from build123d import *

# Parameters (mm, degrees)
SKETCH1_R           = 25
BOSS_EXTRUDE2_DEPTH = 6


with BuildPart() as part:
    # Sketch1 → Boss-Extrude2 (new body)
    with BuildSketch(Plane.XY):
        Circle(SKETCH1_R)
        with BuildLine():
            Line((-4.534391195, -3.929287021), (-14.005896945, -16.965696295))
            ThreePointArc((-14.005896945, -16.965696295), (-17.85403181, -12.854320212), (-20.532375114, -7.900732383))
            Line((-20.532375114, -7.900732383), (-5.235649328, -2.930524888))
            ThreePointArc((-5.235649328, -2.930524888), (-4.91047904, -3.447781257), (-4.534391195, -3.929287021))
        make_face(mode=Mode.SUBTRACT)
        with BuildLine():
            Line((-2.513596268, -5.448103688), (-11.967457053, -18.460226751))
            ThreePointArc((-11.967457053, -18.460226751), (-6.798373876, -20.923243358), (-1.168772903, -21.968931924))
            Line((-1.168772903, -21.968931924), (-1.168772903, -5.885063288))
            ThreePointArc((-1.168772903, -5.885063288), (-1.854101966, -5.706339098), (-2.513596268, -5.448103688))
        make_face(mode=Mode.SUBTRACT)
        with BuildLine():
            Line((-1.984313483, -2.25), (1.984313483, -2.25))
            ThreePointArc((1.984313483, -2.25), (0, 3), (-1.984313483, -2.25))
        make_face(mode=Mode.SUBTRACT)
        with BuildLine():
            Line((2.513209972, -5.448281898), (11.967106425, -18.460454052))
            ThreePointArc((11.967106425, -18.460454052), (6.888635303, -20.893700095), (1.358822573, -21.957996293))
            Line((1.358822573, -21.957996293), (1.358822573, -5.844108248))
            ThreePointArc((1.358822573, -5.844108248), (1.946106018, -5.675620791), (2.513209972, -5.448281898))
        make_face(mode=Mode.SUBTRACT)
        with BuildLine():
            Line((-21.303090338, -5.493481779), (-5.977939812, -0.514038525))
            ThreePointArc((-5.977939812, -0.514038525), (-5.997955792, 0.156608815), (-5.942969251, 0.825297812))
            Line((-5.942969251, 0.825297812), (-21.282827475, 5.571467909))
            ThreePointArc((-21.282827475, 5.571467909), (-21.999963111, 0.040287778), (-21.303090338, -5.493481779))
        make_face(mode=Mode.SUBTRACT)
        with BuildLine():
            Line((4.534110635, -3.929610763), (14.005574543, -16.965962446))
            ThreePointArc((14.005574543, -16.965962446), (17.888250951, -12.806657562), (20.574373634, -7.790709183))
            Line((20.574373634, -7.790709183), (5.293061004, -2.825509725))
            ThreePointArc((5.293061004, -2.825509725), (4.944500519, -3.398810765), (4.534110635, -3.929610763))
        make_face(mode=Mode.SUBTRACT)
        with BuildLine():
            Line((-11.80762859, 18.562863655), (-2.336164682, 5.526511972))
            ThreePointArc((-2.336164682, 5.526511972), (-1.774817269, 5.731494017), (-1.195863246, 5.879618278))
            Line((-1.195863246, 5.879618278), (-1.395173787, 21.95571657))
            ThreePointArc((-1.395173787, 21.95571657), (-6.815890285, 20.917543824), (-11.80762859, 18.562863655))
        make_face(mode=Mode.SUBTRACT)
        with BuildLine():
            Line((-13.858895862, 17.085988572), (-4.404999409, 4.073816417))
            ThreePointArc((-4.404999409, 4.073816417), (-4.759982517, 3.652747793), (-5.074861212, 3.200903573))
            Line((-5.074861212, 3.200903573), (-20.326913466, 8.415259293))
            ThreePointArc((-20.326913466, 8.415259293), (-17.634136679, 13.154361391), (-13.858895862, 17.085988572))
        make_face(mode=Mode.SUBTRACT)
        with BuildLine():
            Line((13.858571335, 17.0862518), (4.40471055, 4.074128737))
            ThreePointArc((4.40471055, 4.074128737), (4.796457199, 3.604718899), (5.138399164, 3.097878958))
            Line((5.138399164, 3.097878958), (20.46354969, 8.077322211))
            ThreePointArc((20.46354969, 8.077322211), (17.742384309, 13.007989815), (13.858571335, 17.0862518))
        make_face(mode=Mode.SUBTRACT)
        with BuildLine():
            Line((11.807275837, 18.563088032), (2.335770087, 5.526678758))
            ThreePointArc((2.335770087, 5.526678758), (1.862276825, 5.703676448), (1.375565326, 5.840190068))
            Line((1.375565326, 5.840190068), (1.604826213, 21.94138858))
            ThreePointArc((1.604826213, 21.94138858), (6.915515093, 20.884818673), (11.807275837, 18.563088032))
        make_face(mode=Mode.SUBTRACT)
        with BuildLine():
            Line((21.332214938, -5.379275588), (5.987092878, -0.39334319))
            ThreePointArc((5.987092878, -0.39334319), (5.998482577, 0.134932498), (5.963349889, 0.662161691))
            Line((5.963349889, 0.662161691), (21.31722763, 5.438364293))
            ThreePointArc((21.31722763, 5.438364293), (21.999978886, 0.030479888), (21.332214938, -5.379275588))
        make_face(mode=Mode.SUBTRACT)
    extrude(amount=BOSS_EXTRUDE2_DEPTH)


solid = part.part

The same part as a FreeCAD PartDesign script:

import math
import FreeCAD as App
import Part
import Sketcher
Q = App.Units.Quantity

doc = App.newDocument("Part")
body = doc.addObject("PartDesign::Body", "Body")

# Sketch on XY plane
sketch1 = body.newObject("Sketcher::SketchObject", "Sketch")
sketch1.AttachmentSupport = (doc.getObject("XY_Plane"), [""])
sketch1.MapMode = "FlatFace"
sketch1.addGeometry([
    Part.Circle(App.Vector(0, 0, 0), App.Vector(0, 0, 1), 25),  # 0
    Part.LineSegment(App.Vector(-11.967457, -18.460227, 0), App.Vector(-2.513596, -5.448104, 0)),  # 1
    Part.ArcOfCircle(Part.Circle(App.Vector(0, 0, 0), App.Vector(0, 0, 1), 6), math.radians(-114.767223), math.radians(-101.232777)),  # 2
    Part.LineSegment(App.Vector(-1.168773, -5.885063, 0), App.Vector(-1.168773, -21.968932, 0)),  # 3
    Part.ArcOfCircle(Part.Circle(App.Vector(0, 0, 0), App.Vector(0, 0, 1), 22), math.radians(-122.954668), math.radians(-93.045332)),  # 4
    Part.ArcOfCircle(Part.Circle(App.Vector(0, 0, 0), App.Vector(0, 0, 1), 6), math.radians(-150.763161), math.radians(-139.08936)),  # 5
    Part.LineSegment(App.Vector(-4.534391, -3.929287, 0), App.Vector(-14.005897, -16.965696, 0)),  # 6
    Part.ArcOfCircle(Part.Circle(App.Vector(0, 0, 0), App.Vector(0, 0, 1), 22), math.radians(-158.95358), math.radians(-129.541108)),  # 7
    Part.LineSegment(App.Vector(-20.532375, -7.900732, 0), App.Vector(-5.235649, -2.930525, 0)),  # 8
    Part.ArcOfCircle(Part.Circle(App.Vector(0, 0, 0), App.Vector(0, 0, 1), 6), math.radians(-76.91064), math.radians(-65.236839)),  # 9
    Part.LineSegment(App.Vector(2.51321, -5.448282, 0), App.Vector(11.967106, -18.460454, 0)),  # 10
    Part.ArcOfCircle(Part.Circle(App.Vector(0, 0, 0), App.Vector(0, 0, 1), 22), math.radians(-86.458892), math.radians(-57.04642)),  # 11
    Part.LineSegment(App.Vector(1.358823, -21.957996, 0), App.Vector(1.358823, -5.844108, 0)),  # 12
    Part.LineSegment(App.Vector(14.005575, -16.965962, 0), App.Vector(4.534111, -3.929611, 0)),  # 13
    Part.ArcOfCircle(Part.Circle(App.Vector(0, 0, 0), App.Vector(0, 0, 1), 6), math.radians(-40.914731), math.radians(-28.093921)),  # 14
    Part.LineSegment(App.Vector(5.293061, -2.82551, 0), App.Vector(20.574374, -7.790709, 0)),  # 15
    Part.ArcOfCircle(Part.Circle(App.Vector(0, 0, 0), App.Vector(0, 0, 1), 22), math.radians(-50.45998), math.radians(-20.739714)),  # 16
    Part.LineSegment(App.Vector(-5.97794, -0.514039, 0), App.Vector(-21.30309, -5.493482, 0)),  # 17
    Part.ArcOfCircle(Part.Circle(App.Vector(0, 0, 0), App.Vector(0, 0, 1), 22), math.radians(165.330172), math.radians(194.45998)),  # 18
    Part.LineSegment(App.Vector(-21.282827, 5.571468, 0), App.Vector(-5.942969, 0.825298, 0)),  # 19
    Part.ArcOfCircle(Part.Circle(App.Vector(0, 0, 0), App.Vector(0, 0, 1), 6), math.radians(172.093921), math.radians(184.914731)),  # 20
    Part.ArcOfCircle(Part.Circle(App.Vector(0, 0, 0), App.Vector(0, 0, 1), 22), math.radians(129.04642), math.radians(157.510644)),  # 21
    Part.LineSegment(App.Vector(-13.858896, 17.085989, 0), App.Vector(-4.404999, 4.073816, 0)),  # 22
    Part.ArcOfCircle(Part.Circle(App.Vector(0, 0, 0), App.Vector(0, 0, 1), 6), math.radians(137.236839), math.radians(147.758846)),  # 23
    Part.LineSegment(App.Vector(-5.074861, 3.200904, 0), App.Vector(-20.326913, 8.415259, 0)),  # 24
    Part.LineSegment(App.Vector(1.984313, -2.25, 0), App.Vector(-1.984313, -2.25, 0)),  # 25
    Part.ArcOfCircle(Part.Circle(App.Vector(0, 0, 0), App.Vector(0, 0, 1), 3), math.radians(-48.590378), math.radians(228.590378)),  # 26
    Part.LineSegment(App.Vector(-2.336165, 5.526512, 0), App.Vector(-11.807629, 18.562864, 0)),  # 27
    Part.ArcOfCircle(Part.Circle(App.Vector(0, 0, 0), App.Vector(0, 0, 1), 22), math.radians(93.635966), math.radians(122.45998)),  # 28
    Part.LineSegment(App.Vector(-1.395174, 21.955717, 0), App.Vector(-1.195863, 5.879618, 0)),  # 29
    Part.ArcOfCircle(Part.Circle(App.Vector(0, 0, 0), App.Vector(0, 0, 1), 6), math.radians(101.496644), math.radians(112.914731)),  # 30
    Part.ArcOfCircle(Part.Circle(App.Vector(0, 0, 0), App.Vector(0, 0, 1), 22), math.radians(-14.153027), math.radians(14.311788)),  # 31
    Part.LineSegment(App.Vector(21.332215, -5.379276, 0), App.Vector(5.987093, -0.393343, 0)),  # 32
    Part.ArcOfCircle(Part.Circle(App.Vector(0, 0, 0), App.Vector(0, 0, 1), 6), math.radians(-3.758847), math.radians(6.336085)),  # 33
    Part.LineSegment(App.Vector(5.96335, 0.662162, 0), App.Vector(21.317228, 5.438364, 0)),  # 34
    Part.LineSegment(App.Vector(4.404711, 4.074129, 0), App.Vector(13.858571, 17.086252, 0)),  # 35
    Part.ArcOfCircle(Part.Circle(App.Vector(0, 0, 0), App.Vector(0, 0, 1), 22), math.radians(21.54002), math.radians(50.954668)),  # 36
    Part.LineSegment(App.Vector(20.46355, 8.077322, 0), App.Vector(5.138399, 3.097879, 0)),  # 37
    Part.ArcOfCircle(Part.Circle(App.Vector(0, 0, 0), App.Vector(0, 0, 1), 6), math.radians(31.085269), math.radians(42.767223)),  # 38
    Part.ArcOfCircle(Part.Circle(App.Vector(0, 0, 0), App.Vector(0, 0, 1), 22), math.radians(57.541108), math.radians(85.816749)),  # 39
    Part.LineSegment(App.Vector(11.807276, 18.563088, 0), App.Vector(2.33577, 5.526679, 0)),  # 40
    Part.ArcOfCircle(Part.Circle(App.Vector(0, 0, 0), App.Vector(0, 0, 1), 6), math.radians(67.08936), math.radians(76.746439)),  # 41
    Part.LineSegment(App.Vector(1.375565, 5.84019, 0), App.Vector(1.604826, 21.941389, 0)),  # 42
], False)
sketch1.addConstraint([
    Sketcher.Constraint("Coincident", 1, 2, 2, 1),
    Sketcher.Constraint("Coincident", 2, 2, 3, 1),
    Sketcher.Constraint("Coincident", 3, 2, 4, 2),
    Sketcher.Constraint("Coincident", 4, 1, 1, 1),
    Sketcher.Constraint("Coincident", 5, 2, 6, 1),
    Sketcher.Constraint("Coincident", 6, 2, 7, 2),
    Sketcher.Constraint("Coincident", 7, 1, 8, 1),
    Sketcher.Constraint("Coincident", 8, 2, 5, 1),
    Sketcher.Constraint("Coincident", 9, 2, 10, 1),
    Sketcher.Constraint("Coincident", 10, 2, 11, 2),
    Sketcher.Constraint("Coincident", 11, 1, 12, 1),
    Sketcher.Constraint("Coincident", 12, 2, 9, 1),
    Sketcher.Constraint("Coincident", 13, 2, 14, 1),
    Sketcher.Constraint("Coincident", 14, 2, 15, 1),
    Sketcher.Constraint("Coincident", 15, 2, 16, 2),
    Sketcher.Constraint("Coincident", 16, 1, 13, 1),
    Sketcher.Constraint("Coincident", 17, 2, 18, 2),
    Sketcher.Constraint("Coincident", 18, 1, 19, 1),
    Sketcher.Constraint("Coincident", 19, 2, 20, 1),
    Sketcher.Constraint("Coincident", 20, 2, 17, 1),
    Sketcher.Constraint("Coincident", 21, 1, 22, 1),
    Sketcher.Constraint("Coincident", 22, 2, 23, 1),
    Sketcher.Constraint("Coincident", 23, 2, 24, 1),
    Sketcher.Constraint("Coincident", 24, 2, 21, 2),
    Sketcher.Constraint("Coincident", 25, 1, 26, 1),
    Sketcher.Constraint("Coincident", 26, 2, 25, 2),
    Sketcher.Constraint("Coincident", 27, 2, 28, 2),
    Sketcher.Constraint("Coincident", 28, 1, 29, 1),
    Sketcher.Constraint("Coincident", 29, 2, 30, 1),
    Sketcher.Constraint("Coincident", 30, 2, 27, 1),
    Sketcher.Constraint("Coincident", 31, 1, 32, 1),
    Sketcher.Constraint("Coincident", 32, 2, 33, 1),
    Sketcher.Constraint("Coincident", 33, 2, 34, 1),
    Sketcher.Constraint("Coincident", 34, 2, 31, 2),
    Sketcher.Constraint("Coincident", 35, 2, 36, 2),
    Sketcher.Constraint("Coincident", 36, 1, 37, 1),
    Sketcher.Constraint("Coincident", 37, 2, 38, 1),
    Sketcher.Constraint("Coincident", 38, 2, 35, 1),
    Sketcher.Constraint("Coincident", 39, 1, 40, 1),
    Sketcher.Constraint("Coincident", 40, 2, 41, 1),
    Sketcher.Constraint("Coincident", 41, 2, 42, 1),
    Sketcher.Constraint("Coincident", 42, 2, 39, 2),
    Sketcher.Constraint("Vertical", 3),
    Sketcher.Constraint("Vertical", 12),
    Sketcher.Constraint("Horizontal", 25),
    Sketcher.Constraint("Coincident", 0, 3, -1, 1),
    Sketcher.Constraint("Coincident", 2, 3, -1, 1),
    Sketcher.Constraint("Coincident", 4, 3, -1, 1),
    Sketcher.Constraint("Coincident", 5, 3, -1, 1),
    Sketcher.Constraint("Coincident", 7, 3, -1, 1),
    Sketcher.Constraint("Coincident", 9, 3, -1, 1),
    Sketcher.Constraint("Coincident", 11, 3, -1, 1),
    Sketcher.Constraint("Coincident", 14, 3, -1, 1),
    Sketcher.Constraint("Coincident", 16, 3, -1, 1),
    Sketcher.Constraint("Coincident", 18, 3, -1, 1),
    Sketcher.Constraint("Coincident", 20, 3, -1, 1),
    Sketcher.Constraint("Coincident", 21, 3, -1, 1),
    Sketcher.Constraint("Coincident", 23, 3, -1, 1),
    Sketcher.Constraint("Coincident", 26, 3, -1, 1),
    Sketcher.Constraint("Coincident", 28, 3, -1, 1),
    Sketcher.Constraint("Coincident", 30, 3, -1, 1),
    Sketcher.Constraint("Coincident", 31, 3, -1, 1),
    Sketcher.Constraint("Coincident", 33, 3, -1, 1),
    Sketcher.Constraint("Coincident", 36, 3, -1, 1),
    Sketcher.Constraint("Coincident", 38, 3, -1, 1),
    Sketcher.Constraint("Coincident", 39, 3, -1, 1),
    Sketcher.Constraint("Coincident", 41, 3, -1, 1),
    Sketcher.Constraint("Equal", 2, 5),
    Sketcher.Constraint("Equal", 4, 7),
    Sketcher.Constraint("Equal", 5, 9),
    Sketcher.Constraint("Equal", 7, 11),
    Sketcher.Constraint("Equal", 9, 14),
    Sketcher.Constraint("Equal", 11, 16),
    Sketcher.Constraint("Equal", 16, 18),
    Sketcher.Constraint("Equal", 14, 20),
    Sketcher.Constraint("Equal", 18, 21),
    Sketcher.Constraint("Equal", 20, 23),
    Sketcher.Constraint("Equal", 21, 28),
    Sketcher.Constraint("Equal", 23, 30),
    Sketcher.Constraint("Equal", 28, 31),
    Sketcher.Constraint("Equal", 30, 33),
    Sketcher.Constraint("Equal", 31, 36),
    Sketcher.Constraint("Equal", 33, 38),
    Sketcher.Constraint("Equal", 36, 39),
    Sketcher.Constraint("Equal", 38, 41),
    Sketcher.Constraint("Parallel", 1, 6),
    Sketcher.Constraint("Parallel", 10, 13),
    Sketcher.Constraint("Parallel", 8, 17),
    Sketcher.Constraint("Parallel", 13, 22),
    Sketcher.Constraint("Parallel", 22, 27),
    Sketcher.Constraint("Parallel", 15, 32),
    Sketcher.Constraint("Parallel", 6, 35),
    Sketcher.Constraint("Parallel", 17, 37),
    Sketcher.Constraint("Parallel", 35, 40),
    Sketcher.Constraint("Equal", 8, 10),
    Sketcher.Constraint("Equal", 13, 17),
    Sketcher.Constraint("Equal", 10, 22),
    Sketcher.Constraint("Equal", 17, 27),
    Sketcher.Constraint("Equal", 1, 35),
    Sketcher.Constraint("Equal", 27, 37),
    Sketcher.Constraint("Equal", 6, 40),
    Sketcher.Constraint("Diameter", 0, Q("50 mm")),
    Sketcher.Constraint("Radius", 2, Q("6 mm")),
    Sketcher.Constraint("Radius", 4, Q("22 mm")),
    Sketcher.Constraint("Radius", 26, Q("3 mm")),
    Sketcher.Constraint("Angle", 1, Q("54 deg")),
    Sketcher.Constraint("Angle", 8, Q("18 deg")),
    Sketcher.Constraint("Angle", 10, Q("-54 deg")),
    Sketcher.Constraint("Angle", 15, Q("-18 deg")),
    Sketcher.Constraint("DistanceY", 25, 1, -1, 1, Q("2.25 mm")),
    Sketcher.Constraint("DistanceX", 22, 2, -1, 1, Q("4.404999 mm")),
    Sketcher.Constraint("DistanceY", 3, 2, 3, 1, Q("16.083869 mm")),
    Sketcher.Constraint("DistanceY", 12, 1, 12, 2, Q("16.113888 mm")),
    Sketcher.Constraint("DistanceX", -1, 1, 37, 2, Q("5.138399 mm")),
    Sketcher.Constraint("Distance", 1, Q("16.083869 mm")),
    Sketcher.Constraint("Distance", 6, Q("16.113888 mm")),
    Sketcher.Constraint("Distance", 42, Q("16.102831 mm")),
    Sketcher.Constraint("DistanceX", -1, 1, 14, 2, Q("5.293061 mm")),
    Sketcher.Constraint("DistanceX", 19, 2, -1, 1, Q("5.942969 mm")),
    Sketcher.Constraint("DistanceX", 23, 2, -1, 1, Q("5.074861 mm")),
    Sketcher.Constraint("DistanceY", -1, 1, 24, 2, Q("8.415259 mm")),
    Sketcher.Constraint("DistanceY", -1, 1, 29, 2, Q("5.879618 mm")),
    Sketcher.Constraint("DistanceX", -1, 1, 33, 2, Q("5.96335 mm")),
    Sketcher.Constraint("DistanceY", -1, 1, 41, 2, Q("5.84019 mm")),
    Sketcher.Constraint("Distance", 19, Q("16.057315 mm")),
    Sketcher.Constraint("Distance", 29, Q("16.077334 mm")),
    Sketcher.Constraint("Distance", 32, Q("16.134816 mm")),
    Sketcher.Constraint("Distance", 34, Q("16.079604 mm")),
])
pad1 = body.newObject("PartDesign::Pad", "Pad")
pad1.Profile = sketch1
pad1.Length = 6

doc.recompute()
